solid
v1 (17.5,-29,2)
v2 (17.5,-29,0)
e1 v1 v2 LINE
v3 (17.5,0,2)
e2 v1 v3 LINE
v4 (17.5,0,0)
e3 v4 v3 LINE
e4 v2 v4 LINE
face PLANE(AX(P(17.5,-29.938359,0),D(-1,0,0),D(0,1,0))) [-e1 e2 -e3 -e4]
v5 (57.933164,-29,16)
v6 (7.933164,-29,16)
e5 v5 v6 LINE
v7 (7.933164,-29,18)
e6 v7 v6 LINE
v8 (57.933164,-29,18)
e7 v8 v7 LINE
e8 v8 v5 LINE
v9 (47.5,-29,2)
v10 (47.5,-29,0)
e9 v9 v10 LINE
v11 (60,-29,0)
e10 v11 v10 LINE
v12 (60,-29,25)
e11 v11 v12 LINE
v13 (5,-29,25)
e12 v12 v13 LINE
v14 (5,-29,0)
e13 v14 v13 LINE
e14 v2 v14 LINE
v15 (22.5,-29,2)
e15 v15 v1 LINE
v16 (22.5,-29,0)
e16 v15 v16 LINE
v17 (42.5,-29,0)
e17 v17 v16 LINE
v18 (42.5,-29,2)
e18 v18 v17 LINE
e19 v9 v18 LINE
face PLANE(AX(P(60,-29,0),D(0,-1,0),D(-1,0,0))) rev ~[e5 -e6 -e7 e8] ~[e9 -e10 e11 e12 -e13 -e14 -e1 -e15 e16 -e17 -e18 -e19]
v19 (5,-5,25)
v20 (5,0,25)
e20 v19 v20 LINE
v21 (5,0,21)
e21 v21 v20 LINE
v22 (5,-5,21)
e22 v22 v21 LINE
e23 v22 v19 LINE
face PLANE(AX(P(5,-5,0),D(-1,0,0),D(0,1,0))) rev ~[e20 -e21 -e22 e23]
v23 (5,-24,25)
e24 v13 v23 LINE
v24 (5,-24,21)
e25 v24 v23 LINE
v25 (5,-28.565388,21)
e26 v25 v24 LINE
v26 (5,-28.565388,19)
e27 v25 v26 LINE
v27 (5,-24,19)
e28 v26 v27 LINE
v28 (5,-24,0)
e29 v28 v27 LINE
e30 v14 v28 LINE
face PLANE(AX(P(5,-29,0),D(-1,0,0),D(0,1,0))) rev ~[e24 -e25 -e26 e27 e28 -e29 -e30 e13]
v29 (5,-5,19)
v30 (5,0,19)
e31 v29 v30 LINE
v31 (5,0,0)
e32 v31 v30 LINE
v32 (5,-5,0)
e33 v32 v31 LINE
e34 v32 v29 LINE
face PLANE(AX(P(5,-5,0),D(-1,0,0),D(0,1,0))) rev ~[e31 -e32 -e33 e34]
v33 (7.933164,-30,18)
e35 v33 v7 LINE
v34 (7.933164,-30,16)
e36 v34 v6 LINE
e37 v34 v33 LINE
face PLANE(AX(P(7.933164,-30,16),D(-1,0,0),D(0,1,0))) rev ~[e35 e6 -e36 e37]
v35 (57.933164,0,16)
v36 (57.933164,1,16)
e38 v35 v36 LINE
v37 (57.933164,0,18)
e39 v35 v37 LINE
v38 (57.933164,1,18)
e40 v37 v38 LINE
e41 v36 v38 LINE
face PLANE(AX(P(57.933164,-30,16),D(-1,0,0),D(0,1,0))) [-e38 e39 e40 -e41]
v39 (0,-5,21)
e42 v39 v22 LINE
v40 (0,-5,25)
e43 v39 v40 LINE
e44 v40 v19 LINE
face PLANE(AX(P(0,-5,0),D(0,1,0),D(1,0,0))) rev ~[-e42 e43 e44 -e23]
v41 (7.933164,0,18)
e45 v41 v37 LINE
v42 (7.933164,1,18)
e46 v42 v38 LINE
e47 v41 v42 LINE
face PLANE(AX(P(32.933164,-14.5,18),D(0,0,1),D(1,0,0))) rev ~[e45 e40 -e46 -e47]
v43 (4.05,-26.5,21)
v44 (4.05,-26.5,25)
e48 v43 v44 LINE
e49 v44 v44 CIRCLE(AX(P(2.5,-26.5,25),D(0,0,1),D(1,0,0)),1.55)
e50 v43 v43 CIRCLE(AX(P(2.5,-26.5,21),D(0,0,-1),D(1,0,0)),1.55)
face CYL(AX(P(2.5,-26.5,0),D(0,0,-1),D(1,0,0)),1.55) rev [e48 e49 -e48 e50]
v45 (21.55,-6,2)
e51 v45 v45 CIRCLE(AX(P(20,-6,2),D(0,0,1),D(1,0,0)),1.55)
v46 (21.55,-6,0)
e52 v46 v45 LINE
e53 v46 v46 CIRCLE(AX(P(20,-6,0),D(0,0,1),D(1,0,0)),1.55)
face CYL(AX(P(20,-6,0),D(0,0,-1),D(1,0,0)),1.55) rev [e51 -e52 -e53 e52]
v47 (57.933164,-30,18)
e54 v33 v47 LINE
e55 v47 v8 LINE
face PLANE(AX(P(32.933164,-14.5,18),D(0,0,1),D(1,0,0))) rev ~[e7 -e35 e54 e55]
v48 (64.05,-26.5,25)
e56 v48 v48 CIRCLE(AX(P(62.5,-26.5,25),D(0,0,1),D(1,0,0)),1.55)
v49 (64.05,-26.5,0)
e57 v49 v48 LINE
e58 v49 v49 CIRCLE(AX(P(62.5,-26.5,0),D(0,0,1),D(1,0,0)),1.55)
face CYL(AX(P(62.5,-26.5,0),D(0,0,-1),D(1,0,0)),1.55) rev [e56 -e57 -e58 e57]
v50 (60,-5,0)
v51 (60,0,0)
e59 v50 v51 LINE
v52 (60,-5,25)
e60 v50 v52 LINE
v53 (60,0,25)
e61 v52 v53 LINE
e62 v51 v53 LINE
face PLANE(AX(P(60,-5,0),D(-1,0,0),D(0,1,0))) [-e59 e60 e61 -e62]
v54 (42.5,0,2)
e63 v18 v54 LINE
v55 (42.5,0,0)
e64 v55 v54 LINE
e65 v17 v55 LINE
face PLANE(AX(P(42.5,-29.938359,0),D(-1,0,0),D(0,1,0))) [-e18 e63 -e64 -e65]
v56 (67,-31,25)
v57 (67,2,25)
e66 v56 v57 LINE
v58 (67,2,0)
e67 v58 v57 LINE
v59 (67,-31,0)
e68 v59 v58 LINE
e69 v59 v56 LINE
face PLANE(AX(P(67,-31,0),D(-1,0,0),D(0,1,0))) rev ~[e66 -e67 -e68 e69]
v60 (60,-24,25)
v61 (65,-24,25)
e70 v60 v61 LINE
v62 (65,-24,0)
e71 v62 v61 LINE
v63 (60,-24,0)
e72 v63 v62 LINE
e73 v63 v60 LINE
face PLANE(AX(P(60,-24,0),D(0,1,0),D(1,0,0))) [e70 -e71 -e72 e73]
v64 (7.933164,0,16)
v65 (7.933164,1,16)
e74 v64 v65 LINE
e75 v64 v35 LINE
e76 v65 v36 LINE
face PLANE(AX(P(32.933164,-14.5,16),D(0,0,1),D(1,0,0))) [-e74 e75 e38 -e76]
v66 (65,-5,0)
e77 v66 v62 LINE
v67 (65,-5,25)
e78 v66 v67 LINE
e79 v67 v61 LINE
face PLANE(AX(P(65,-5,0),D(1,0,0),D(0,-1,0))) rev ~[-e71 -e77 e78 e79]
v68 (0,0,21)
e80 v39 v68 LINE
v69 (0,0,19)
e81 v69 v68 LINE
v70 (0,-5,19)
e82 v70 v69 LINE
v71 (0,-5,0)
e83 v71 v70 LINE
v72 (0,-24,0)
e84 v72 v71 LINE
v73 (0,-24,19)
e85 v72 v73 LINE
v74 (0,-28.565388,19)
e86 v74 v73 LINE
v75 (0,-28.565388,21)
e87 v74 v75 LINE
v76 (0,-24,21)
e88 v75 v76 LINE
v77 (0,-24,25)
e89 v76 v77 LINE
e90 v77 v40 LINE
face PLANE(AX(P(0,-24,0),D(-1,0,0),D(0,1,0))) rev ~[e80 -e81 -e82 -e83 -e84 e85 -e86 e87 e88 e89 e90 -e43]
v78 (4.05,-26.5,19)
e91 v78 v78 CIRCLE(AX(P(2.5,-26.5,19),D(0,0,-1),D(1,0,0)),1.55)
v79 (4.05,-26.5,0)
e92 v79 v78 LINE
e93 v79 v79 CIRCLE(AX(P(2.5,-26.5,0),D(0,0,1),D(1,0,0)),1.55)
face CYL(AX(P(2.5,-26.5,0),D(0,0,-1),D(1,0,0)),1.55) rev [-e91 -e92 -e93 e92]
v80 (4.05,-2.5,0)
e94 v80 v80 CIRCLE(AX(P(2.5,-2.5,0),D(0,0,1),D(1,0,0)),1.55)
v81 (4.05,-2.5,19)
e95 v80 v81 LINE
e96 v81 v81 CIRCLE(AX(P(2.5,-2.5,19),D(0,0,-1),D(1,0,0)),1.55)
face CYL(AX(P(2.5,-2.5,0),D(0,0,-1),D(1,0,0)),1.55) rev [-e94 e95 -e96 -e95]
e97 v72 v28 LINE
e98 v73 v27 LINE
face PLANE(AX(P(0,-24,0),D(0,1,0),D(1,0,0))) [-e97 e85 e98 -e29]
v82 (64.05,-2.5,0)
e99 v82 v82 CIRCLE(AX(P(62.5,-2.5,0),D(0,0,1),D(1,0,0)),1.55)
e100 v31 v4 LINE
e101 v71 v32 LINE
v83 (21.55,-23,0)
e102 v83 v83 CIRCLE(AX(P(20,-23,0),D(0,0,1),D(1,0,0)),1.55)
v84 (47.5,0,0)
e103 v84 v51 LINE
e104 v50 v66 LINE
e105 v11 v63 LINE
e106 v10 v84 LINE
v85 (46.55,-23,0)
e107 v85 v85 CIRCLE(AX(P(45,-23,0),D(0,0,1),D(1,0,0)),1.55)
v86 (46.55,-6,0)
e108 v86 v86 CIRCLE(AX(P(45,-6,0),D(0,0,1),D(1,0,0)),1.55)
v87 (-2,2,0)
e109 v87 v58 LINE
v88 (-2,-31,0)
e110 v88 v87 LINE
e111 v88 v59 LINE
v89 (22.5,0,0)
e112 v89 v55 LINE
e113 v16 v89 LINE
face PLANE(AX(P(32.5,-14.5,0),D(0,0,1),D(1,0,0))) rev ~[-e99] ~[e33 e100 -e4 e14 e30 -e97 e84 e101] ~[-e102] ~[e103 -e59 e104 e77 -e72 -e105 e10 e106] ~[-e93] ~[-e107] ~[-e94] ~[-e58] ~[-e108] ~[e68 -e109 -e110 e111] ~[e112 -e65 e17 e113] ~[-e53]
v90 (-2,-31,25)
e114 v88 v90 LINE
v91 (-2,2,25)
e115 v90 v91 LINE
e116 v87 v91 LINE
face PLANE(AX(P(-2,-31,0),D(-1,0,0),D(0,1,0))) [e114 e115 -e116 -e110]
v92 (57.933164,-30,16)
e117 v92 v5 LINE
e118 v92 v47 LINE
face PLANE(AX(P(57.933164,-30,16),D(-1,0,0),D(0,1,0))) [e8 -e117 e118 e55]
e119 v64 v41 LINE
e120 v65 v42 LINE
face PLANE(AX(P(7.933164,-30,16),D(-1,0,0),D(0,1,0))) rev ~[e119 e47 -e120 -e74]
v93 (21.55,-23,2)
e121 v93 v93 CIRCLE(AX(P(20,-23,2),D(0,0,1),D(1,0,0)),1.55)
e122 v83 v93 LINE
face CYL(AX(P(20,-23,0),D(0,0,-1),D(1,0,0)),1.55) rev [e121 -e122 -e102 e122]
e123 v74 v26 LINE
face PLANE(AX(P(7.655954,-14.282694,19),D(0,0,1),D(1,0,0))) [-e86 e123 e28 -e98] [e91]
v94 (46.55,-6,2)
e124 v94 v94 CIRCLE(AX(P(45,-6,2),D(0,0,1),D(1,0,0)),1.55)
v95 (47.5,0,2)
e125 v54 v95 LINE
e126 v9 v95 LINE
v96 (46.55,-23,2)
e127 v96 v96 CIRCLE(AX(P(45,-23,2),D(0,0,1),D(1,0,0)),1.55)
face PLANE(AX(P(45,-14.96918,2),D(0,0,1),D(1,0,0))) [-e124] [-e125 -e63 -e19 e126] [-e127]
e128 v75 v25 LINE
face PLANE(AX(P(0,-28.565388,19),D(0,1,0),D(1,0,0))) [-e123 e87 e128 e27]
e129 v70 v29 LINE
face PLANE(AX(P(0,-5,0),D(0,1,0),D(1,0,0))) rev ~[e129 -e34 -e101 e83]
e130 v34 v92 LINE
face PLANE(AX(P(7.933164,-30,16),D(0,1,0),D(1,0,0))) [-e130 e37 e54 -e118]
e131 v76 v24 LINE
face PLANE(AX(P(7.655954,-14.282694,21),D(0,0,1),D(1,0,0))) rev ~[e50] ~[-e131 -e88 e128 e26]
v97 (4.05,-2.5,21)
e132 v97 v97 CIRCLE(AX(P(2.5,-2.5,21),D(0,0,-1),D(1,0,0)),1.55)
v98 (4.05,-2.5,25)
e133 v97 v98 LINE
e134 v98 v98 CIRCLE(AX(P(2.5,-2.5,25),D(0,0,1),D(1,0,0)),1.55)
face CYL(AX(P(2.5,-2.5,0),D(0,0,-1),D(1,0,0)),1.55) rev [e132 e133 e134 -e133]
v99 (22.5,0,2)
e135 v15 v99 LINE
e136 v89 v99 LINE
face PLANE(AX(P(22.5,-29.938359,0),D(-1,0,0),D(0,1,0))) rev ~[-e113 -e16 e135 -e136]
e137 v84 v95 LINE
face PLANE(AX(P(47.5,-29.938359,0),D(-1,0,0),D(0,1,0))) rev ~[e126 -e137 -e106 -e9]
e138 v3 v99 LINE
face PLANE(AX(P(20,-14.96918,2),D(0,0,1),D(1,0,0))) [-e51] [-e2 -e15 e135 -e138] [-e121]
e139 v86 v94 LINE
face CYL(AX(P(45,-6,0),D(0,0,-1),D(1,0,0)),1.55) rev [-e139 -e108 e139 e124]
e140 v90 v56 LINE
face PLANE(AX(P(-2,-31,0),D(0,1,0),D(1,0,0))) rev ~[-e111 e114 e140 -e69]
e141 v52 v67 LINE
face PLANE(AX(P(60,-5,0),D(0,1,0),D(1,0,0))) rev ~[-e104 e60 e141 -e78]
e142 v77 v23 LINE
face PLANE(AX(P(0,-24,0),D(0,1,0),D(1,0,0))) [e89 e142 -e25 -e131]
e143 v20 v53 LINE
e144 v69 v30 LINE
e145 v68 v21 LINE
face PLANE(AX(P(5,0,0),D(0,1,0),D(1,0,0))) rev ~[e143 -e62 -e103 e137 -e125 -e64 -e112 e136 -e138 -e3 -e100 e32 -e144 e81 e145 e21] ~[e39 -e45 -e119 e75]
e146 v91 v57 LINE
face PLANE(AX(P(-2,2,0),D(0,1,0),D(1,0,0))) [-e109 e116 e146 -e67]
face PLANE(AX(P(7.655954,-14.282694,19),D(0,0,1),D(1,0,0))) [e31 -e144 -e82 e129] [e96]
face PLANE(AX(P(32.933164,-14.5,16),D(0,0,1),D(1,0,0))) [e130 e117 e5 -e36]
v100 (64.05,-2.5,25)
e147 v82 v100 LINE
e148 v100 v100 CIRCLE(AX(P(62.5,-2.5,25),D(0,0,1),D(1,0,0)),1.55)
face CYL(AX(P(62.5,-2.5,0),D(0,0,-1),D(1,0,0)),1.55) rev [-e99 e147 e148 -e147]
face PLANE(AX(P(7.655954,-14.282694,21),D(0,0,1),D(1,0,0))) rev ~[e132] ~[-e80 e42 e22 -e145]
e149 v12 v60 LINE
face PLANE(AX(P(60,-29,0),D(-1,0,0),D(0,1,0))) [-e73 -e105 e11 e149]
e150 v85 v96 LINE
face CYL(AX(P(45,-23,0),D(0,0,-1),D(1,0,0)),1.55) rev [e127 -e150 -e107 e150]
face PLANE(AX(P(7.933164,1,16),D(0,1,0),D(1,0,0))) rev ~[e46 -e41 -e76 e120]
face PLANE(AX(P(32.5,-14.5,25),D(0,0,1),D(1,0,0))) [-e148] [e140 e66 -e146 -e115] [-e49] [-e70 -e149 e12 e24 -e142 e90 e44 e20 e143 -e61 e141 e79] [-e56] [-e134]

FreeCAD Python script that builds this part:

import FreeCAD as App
import Part
import Sketcher

V = App.Vector


def add_polygon(sketch, points):
    """Adds a closed chain of lines whose ends are joined by coincident constraints."""
    first, n = sketch.GeometryCount, len(points)
    for a, b in zip(points, points[1:] + points[:1]):
        sketch.addGeometry(Part.LineSegment(App.Vector(*a, 0), App.Vector(*b, 0)), False)
    for i in range(n):
        sketch.addConstraint(Sketcher.Constraint("Coincident", first + i, 2, first + (i + 1) % n, 1))

doc = App.newDocument("Part")
params = doc.addObject("Spreadsheet::Sheet", "Params")
for row, (alias, value) in enumerate([
    ("sketch1_diameter", "3.1 mm"),
    ("sketch1_width", "69 mm"),
    ("sketch1_width2", "5 mm"),
    ("sketch1_width3", "55 mm"),
    ("sketch1_height", "33 mm"),
    ("pad1_length", "25 mm"),
    ("sketch2_width", "50 mm"),
    ("sketch2_height", "31 mm"),
    ("pocket1_length", "2 mm"),
    ("pocket2_length", "2 mm"),
    ("sketch4_diameter", "3.1 mm"),
    ("sketch4_width", "5 mm"),
    ("pad2_length", "2 mm"),
], start=1):
    params.set(f"A{row}", alias)
    params.set(f"B{row}", "=" + value)
    params.setAlias(f"B{row}", alias)

body = doc.addObject("PartDesign::Body", "Body")

sketch1 = body.newObject("Sketcher::SketchObject", "Sketch")
sketch1.AttachmentSupport = (doc.getObject("XY_Plane"), [""])
sketch1.MapMode = "FlatFace"
add_polygon(sketch1, [(-2, 2), (-2, -31), (67, -31), (67, 2)])
sketch1.addGeometry(Part.Circle(V(2.5, -26.5, 0), V(0, 0, 1), 1.55), False)
sketch1.addGeometry(Part.Circle(V(62.5, -26.5, 0), V(0, 0, 1), 1.55), False)
sketch1.addGeometry(Part.Circle(V(2.5, -2.5, 0), V(0, 0, 1), 1.55), False)
add_polygon(sketch1, [(0, -24), (0, -5), (5, -5), (5, 0), (60, 0), (60, -5), (65, -5), (65, -24), (60, -24), (60, -29), (5, -29), (5, -24)])
sketch1.addGeometry(Part.Circle(V(62.5, -2.5, 0), V(0, 0, 1), 1.55), False)
sketch1.addConstraint([
    Sketcher.Constraint("Vertical", 0),
    Sketcher.Constraint("Horizontal", 1),
    Sketcher.Constraint("Vertical", 2),
    Sketcher.Constraint("Horizontal", 3),
    Sketcher.Constraint("Vertical", 7),
    Sketcher.Constraint("Horizontal", 8),
    Sketcher.Constraint("Vertical", 9),
    Sketcher.Constraint("Horizontal", 10),
    Sketcher.Constraint("Vertical", 11),
    Sketcher.Constraint("Horizontal", 12),
    Sketcher.Constraint("Vertical", 13),
    Sketcher.Constraint("Horizontal", 14),
    Sketcher.Constraint("Vertical", 15),
    Sketcher.Constraint("Horizontal", 16),
    Sketcher.Constraint("Vertical", 17),
    Sketcher.Constraint("Horizontal", 18),
    Sketcher.Constraint("Equal", 4, 5),
    Sketcher.Constraint("Equal", 5, 6),
    Sketcher.Constraint("Equal", 6, 19),
    Sketcher.Constraint("PointOnObject", 7, 2, -2),
    Sketcher.Constraint("PointOnObject", 9, 2, -1),
    Sketcher.Constraint("Horizontal", 4, 3, 5, 3),
    Sketcher.Constraint("Horizontal", 6, 3, 19, 3),
    Sketcher.Constraint("Horizontal", 8, 2, 11, 2),
    Sketcher.Constraint("Horizontal", 14, 2, 17, 2),
    Sketcher.Constraint("Vertical", 4, 3, 6, 3),
    Sketcher.Constraint("Vertical", 5, 3, 19, 3),
    Sketcher.Constraint("Vertical", 11, 2, 14, 2),
    Sketcher.Constraint("Vertical", 9, 2, 16, 2),
    Sketcher.Constraint("Equal", 8, 12),
    Sketcher.Constraint("Equal", 18, 9),
    Sketcher.Constraint("Equal", 11, 15),
    Sketcher.Constraint("Diameter", 4, 3.1),
    Sketcher.Constraint("DistanceX", 1, 1, 1, 2, 69.0),
    Sketcher.Constraint("DistanceX", 8, 1, 8, 2, 5.0),
    Sketcher.Constraint("DistanceX", 10, 1, 10, 2, 55.0),
    Sketcher.Constraint("DistanceY", 0, 2, 0, 1, 33.0),
    Sketcher.Constraint("DistanceY", 7, 1, 7, 2, 19.0),
    Sketcher.Constraint("DistanceX", 0, 2, -1, 1, 2.0),
    Sketcher.Constraint("DistanceY", 0, 2, -1, 1, 31.0),
    Sketcher.Constraint("DistanceX", 4, 3, 5, 3, 60.0),
    Sketcher.Constraint("DistanceY", 4, 3, 6, 3, 24.0),
    Sketcher.Constraint("DistanceX", -1, 1, 4, 3, 2.5),
    Sketcher.Constraint("DistanceY", 4, 3, -1, 1, 26.5),
])
sketch1.setExpression("Constraints[48]", "Params.sketch1_diameter")
sketch1.setExpression("Constraints[49]", "Params.sketch1_width")
sketch1.setExpression("Constraints[50]", "Params.sketch1_width2")
sketch1.setExpression("Constraints[51]", "Params.sketch1_width3")
sketch1.setExpression("Constraints[52]", "Params.sketch1_height")
pad1 = body.newObject("PartDesign::Pad", "Pad")
pad1.Profile = sketch1
pad1.setExpression("Length", "Params.pad1_length")

sketch2 = body.newObject("Sketcher::SketchObject", "Sketch001")
sketch2.AttachmentSupport = (doc.getObject("XY_Plane"), [""])
sketch2.MapMode = "FlatFace"
sketch2.AttachmentOffset = App.Placement(V(0, 0, 16), App.Rotation())
add_polygon(sketch2, [(7.933164, 1), (7.933164, -30), (57.933164, -30), (57.933164, 1)])
sketch2.addConstraint([
    Sketcher.Constraint("Vertical", 0),
    Sketcher.Constraint("Horizontal", 1),
    Sketcher.Constraint("Vertical", 2),
    Sketcher.Constraint("Horizontal", 3),
    Sketcher.Constraint("DistanceX", 1, 1, 1, 2, 50.0),
    Sketcher.Constraint("DistanceY", 0, 2, 0, 1, 31.0),
    Sketcher.Constraint("DistanceY", 0, 2, -1, 1, 30.0),
    Sketcher.Constraint("DistanceX", -1, 1, 0, 2, 7.933164),
])
sketch2.setExpression("Constraints[8]", "Params.sketch2_width")
sketch2.setExpression("Constraints[9]", "Params.sketch2_height")
pocket1 = body.newObject("PartDesign::Pocket", "Pocket")
pocket1.Profile = sketch2
pocket1.setExpression("Length", "Params.pocket1_length")
pocket1.Reversed = True

sketch3 = body.newObject("Sketcher::SketchObject", "Sketch002")
sketch3.AttachmentSupport = (doc.getObject("XY_Plane"), [""])
sketch3.MapMode = "FlatFace"
sketch3.AttachmentOffset = App.Placement(V(0, 0, 19), App.Rotation())
add_polygon(sketch3, [(0, 0), (0, -28.565388), (15.311907, -28.565388), (15.311907, 0)])
sketch3.addConstraint([
    Sketcher.Constraint("Vertical", 0),
    Sketcher.Constraint("Horizontal", 1),
    Sketcher.Constraint("Vertical", 2),
    Sketcher.Constraint("Horizontal", 3),
    Sketcher.Constraint("Coincident", 3, 2, -1, 1),
    Sketcher.Constraint("DistanceY", 0, 2, 0, 1, 28.565388),
    Sketcher.Constraint("DistanceX", 1, 1, 1, 2, 15.311907),
])
pocket2 = body.newObject("PartDesign::Pocket", "Pocket001")
pocket2.Profile = sketch3
pocket2.setExpression("Length", "Params.pocket2_length")
pocket2.Reversed = True

sketch4 = body.newObject("Sketcher::SketchObject", "Sketch003")
sketch4.AttachmentSupport = (doc.getObject("XY_Plane"), [""])
sketch4.MapMode = "FlatFace"
add_polygon(sketch4, [(17.5, 0), (17.5, -29.938359), (22.5, -29.938359), (22.5, 0)])
sketch4.addGeometry(Part.Circle(V(20, -23, 0), V(0, 0, 1), 1.55), False)
sketch4.addGeometry(Part.Circle(V(20, -6, 0), V(0, 0, 1), 1.55), False)
add_polygon(sketch4, [(42.5, 0), (42.5, -29.938359), (47.5, -29.938359), (47.5, 0)])
sketch4.addGeometry(Part.Circle(V(45, -23, 0), V(0, 0, 1), 1.55), False)
sketch4.addGeometry(Part.Circle(V(45, -6, 0), V(0, 0, 1), 1.55), False)
sketch4.addConstraint([
    Sketcher.Constraint("Vertical", 0),
    Sketcher.Constraint("Horizontal", 1),
    Sketcher.Constraint("Vertical", 2),
    Sketcher.Constraint("Horizontal", 3),
    Sketcher.Constraint("Vertical", 6),
    Sketcher.Constraint("Horizontal", 7),
    Sketcher.Constraint("Vertical", 8),
    Sketcher.Constraint("Horizontal", 9),
    Sketcher.Constraint("Equal", 4, 5),
    Sketcher.Constraint("Equal", 5, 10),
    Sketcher.Constraint("Equal", 10, 11),
    Sketcher.Constraint("PointOnObject", 2, 2, -1),
    Sketcher.Constraint("PointOnObject", 8, 2, -1),
    Sketcher.Constraint("Horizontal", 4, 3, 10, 3),
    Sketcher.Constraint("Horizontal", 5, 3, 11, 3),
    Sketcher.Constraint("Horizontal", 1, 2, 6, 2),
    Sketcher.Constraint("Vertical", 4, 3, 5, 3),
    Sketcher.Constraint("Vertical", 10, 3, 11, 3),
    Sketcher.Constraint("Equal", 3, 7),
    Sketcher.Constraint("Diameter", 4, 3.1),
    Sketcher.Constraint("DistanceX", 1, 1, 1, 2, 5.0),
    Sketcher.Constraint("DistanceX", -1, 1, 4, 3, 20.0),
    Sketcher.Constraint("DistanceY", 4, 3, -1, 1, 23.0),
    Sketcher.Constraint("DistanceY", 5, 3, -1, 1, 6.0),
    Sketcher.Constraint("DistanceX", -1, 1, 10, 3, 45.0),
    Sketcher.Constraint("DistanceX", 1, 2, 6, 2, 20.0),
    Sketcher.Constraint("DistanceX", -1, 1, 0, 2, 17.5),
    Sketcher.Constraint("DistanceY", 0, 2, 0, 1, 29.938359),
])
sketch4.setExpression("Constraints[27]", "Params.sketch4_diameter")
sketch4.setExpression("Constraints[28]", "Params.sketch4_width")
pad2 = body.newObject("PartDesign::Pad", "Pad001")
pad2.Profile = sketch4
pad2.setExpression("Length", "Params.pad2_length")

doc.recompute()
